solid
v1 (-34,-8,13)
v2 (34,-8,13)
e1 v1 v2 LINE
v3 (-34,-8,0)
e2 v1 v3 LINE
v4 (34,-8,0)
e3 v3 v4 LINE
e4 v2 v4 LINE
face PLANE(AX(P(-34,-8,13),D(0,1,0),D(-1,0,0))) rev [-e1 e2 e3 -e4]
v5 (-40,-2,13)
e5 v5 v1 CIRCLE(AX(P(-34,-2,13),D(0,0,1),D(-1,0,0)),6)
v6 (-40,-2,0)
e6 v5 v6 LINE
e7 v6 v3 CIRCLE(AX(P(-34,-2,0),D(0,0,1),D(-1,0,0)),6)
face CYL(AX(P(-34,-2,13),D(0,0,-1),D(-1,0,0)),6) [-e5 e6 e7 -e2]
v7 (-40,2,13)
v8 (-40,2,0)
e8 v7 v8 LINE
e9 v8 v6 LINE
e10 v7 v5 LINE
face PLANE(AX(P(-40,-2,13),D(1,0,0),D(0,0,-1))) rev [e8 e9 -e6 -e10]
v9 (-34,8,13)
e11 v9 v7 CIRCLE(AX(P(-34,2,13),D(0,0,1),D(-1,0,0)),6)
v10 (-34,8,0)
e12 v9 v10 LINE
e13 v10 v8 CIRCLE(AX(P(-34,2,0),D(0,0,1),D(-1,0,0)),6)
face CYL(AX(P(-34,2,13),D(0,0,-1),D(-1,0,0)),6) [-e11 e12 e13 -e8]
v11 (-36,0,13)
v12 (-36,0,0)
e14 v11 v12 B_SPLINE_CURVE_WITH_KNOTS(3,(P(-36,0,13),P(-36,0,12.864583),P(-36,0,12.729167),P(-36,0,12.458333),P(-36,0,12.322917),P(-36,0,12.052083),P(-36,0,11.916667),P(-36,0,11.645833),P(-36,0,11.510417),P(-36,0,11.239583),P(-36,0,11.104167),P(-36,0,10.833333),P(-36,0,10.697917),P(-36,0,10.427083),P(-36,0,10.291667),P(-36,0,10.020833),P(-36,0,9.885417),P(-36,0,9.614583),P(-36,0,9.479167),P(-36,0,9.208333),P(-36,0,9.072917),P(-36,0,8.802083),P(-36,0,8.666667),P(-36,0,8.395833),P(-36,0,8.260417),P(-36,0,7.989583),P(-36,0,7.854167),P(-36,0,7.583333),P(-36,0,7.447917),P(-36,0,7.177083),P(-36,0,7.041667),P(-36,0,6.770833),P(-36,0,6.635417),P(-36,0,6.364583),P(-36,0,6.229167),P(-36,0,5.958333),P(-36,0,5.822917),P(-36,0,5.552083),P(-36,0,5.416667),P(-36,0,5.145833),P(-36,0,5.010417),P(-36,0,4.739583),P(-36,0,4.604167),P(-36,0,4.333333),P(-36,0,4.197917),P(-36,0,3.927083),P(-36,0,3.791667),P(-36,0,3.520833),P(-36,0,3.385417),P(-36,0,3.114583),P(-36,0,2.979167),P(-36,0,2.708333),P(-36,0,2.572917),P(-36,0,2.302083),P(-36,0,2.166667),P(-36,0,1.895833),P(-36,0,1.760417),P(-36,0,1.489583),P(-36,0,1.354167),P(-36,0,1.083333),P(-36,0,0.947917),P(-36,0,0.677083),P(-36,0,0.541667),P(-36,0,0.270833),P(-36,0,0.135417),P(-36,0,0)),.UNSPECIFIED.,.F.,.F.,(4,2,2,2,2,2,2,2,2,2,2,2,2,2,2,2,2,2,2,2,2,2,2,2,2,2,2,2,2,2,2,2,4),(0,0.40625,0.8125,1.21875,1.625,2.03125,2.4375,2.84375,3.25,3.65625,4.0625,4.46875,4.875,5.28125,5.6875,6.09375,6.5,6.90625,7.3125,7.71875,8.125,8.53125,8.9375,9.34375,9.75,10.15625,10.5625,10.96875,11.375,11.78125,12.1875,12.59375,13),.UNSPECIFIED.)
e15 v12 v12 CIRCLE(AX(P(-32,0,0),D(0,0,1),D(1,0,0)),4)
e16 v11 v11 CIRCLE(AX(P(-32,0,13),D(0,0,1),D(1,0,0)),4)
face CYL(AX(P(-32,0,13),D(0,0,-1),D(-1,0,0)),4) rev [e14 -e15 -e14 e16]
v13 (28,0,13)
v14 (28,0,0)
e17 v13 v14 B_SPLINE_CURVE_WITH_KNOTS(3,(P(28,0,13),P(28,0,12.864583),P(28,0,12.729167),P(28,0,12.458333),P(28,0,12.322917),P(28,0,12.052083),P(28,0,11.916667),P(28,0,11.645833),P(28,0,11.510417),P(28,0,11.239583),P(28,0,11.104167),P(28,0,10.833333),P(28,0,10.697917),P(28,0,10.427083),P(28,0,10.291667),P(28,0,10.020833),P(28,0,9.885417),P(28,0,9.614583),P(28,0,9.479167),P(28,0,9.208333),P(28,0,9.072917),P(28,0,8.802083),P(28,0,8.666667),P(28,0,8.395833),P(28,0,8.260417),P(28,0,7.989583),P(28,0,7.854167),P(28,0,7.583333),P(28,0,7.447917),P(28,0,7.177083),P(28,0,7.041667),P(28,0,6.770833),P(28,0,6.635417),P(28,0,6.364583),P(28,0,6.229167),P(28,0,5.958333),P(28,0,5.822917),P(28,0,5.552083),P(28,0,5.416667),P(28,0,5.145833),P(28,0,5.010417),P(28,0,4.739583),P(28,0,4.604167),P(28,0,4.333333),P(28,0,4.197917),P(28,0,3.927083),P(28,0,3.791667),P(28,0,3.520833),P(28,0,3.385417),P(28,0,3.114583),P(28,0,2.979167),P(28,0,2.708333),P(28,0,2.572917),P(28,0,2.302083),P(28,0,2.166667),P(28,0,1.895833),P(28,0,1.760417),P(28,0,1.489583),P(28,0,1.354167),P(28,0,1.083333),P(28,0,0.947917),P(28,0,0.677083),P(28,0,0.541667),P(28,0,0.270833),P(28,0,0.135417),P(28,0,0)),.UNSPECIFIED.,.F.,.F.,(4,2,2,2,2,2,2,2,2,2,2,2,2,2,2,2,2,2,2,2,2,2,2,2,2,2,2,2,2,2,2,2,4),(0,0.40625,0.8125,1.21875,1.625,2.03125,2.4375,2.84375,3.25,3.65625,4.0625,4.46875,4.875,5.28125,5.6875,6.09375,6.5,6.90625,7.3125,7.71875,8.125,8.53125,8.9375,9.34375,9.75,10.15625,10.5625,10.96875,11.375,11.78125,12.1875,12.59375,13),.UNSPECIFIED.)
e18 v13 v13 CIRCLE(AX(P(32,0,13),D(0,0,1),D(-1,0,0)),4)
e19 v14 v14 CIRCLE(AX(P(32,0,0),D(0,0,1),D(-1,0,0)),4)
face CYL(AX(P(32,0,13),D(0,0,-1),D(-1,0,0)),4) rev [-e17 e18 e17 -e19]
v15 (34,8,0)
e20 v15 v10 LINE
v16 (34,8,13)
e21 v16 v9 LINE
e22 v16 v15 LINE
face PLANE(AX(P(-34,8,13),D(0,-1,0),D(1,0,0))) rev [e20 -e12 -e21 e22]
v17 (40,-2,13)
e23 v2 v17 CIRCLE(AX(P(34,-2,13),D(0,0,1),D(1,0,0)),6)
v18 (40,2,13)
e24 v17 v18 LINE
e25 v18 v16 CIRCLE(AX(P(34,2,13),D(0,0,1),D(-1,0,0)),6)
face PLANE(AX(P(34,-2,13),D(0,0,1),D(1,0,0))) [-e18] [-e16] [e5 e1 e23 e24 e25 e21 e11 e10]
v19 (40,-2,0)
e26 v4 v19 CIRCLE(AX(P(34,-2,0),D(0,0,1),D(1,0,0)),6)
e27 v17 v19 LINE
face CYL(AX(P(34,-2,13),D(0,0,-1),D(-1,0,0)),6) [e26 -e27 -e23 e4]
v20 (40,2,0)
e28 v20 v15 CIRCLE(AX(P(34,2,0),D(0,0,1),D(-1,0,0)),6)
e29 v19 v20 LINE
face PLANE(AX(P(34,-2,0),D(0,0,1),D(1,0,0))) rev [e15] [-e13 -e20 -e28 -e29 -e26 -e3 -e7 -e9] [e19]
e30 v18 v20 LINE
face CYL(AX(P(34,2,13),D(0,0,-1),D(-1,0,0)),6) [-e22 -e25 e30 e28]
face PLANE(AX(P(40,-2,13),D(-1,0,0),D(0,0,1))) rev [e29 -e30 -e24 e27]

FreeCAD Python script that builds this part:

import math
import FreeCAD as App
import Part
import Sketcher

doc = App.newDocument("Part")
body = doc.addObject("PartDesign::Body", "Body")

# Sketch on XY plane
sketch1 = body.newObject("Sketcher::SketchObject", "Sketch")
sketch1.AttachmentSupport = (doc.getObject("XY_Plane"), [""])
sketch1.MapMode = "FlatFace"
sketch1.addGeometry([
    Part.LineSegment(App.Vector(-34, -8, 0), App.Vector(34, -8, 0)),  # 0
    Part.ArcOfCircle(Part.Circle(App.Vector(34, -2, 0), App.Vector(0, 0, 1), 6), math.radians(-90), math.radians(0)),  # 1
    Part.LineSegment(App.Vector(40, -2, 0), App.Vector(40, 2, 0)),  # 2
    Part.ArcOfCircle(Part.Circle(App.Vector(34, 2, 0), App.Vector(0, 0, 1), 6), math.radians(0), math.radians(90)),  # 3
    Part.LineSegment(App.Vector(34, 8, 0), App.Vector(-34, 8, 0)),  # 4
    Part.ArcOfCircle(Part.Circle(App.Vector(-34, 2, 0), App.Vector(0, 0, 1), 6), math.radians(90), math.radians(180)),  # 5
    Part.LineSegment(App.Vector(-40, 2, 0), App.Vector(-40, -2, 0)),  # 6
    Part.ArcOfCircle(Part.Circle(App.Vector(-34, -2, 0), App.Vector(0, 0, 1), 6), math.radians(180), math.radians(270)),  # 7
    Part.Circle(App.Vector(-32, 0, 0), App.Vector(0, 0, 1), 4),  # 8
    Part.Circle(App.Vector(32, 0, 0), App.Vector(0, 0, 1), 4),  # 9
], False)
sketch1.addConstraint([
    Sketcher.Constraint("Tangent", 0, 2, 1, 1),
    Sketcher.Constraint("Tangent", 1, 2, 2, 1),
    Sketcher.Constraint("Tangent", 2, 2, 3, 1),
    Sketcher.Constraint("Tangent", 3, 2, 4, 1),
    Sketcher.Constraint("Tangent", 4, 2, 5, 1),
    Sketcher.Constraint("Tangent", 5, 2, 6, 1),
    Sketcher.Constraint("Tangent", 6, 2, 7, 1),
    Sketcher.Constraint("Tangent", 7, 2, 0, 1),
    Sketcher.Constraint("Horizontal", 0),
    Sketcher.Constraint("Vertical", 2),
    Sketcher.Constraint("Horizontal", 4),
    Sketcher.Constraint("Vertical", 6),
    Sketcher.Constraint("Equal", 1, 3),
    Sketcher.Constraint("Equal", 3, 5),
    Sketcher.Constraint("Equal", 5, 7),
    Sketcher.Constraint("Equal", 8, 9),
    Sketcher.Constraint("Symmetric", 1, 3, 5, 3, -1, 1),
    Sketcher.Constraint("Symmetric", 8, 3, 9, 3, -1, 1),
    Sketcher.Constraint("PointOnObject", 8, 3, -1),
    Sketcher.Constraint("Diameter", 8, 8.0),
    Sketcher.Constraint("Radius", 1, 6.0),
    Sketcher.Constraint("DistanceX", 0, 1, 0, 2, 68.0),
    Sketcher.Constraint("DistanceY", 2, 1, 2, 2, 4.0),
    Sketcher.Constraint("DistanceX", 8, 3, -1, 1, 32.0),
])
pad1 = body.newObject("PartDesign::Pad", "Pad")
pad1.Profile = sketch1
pad1.Length = 13

doc.recompute()
